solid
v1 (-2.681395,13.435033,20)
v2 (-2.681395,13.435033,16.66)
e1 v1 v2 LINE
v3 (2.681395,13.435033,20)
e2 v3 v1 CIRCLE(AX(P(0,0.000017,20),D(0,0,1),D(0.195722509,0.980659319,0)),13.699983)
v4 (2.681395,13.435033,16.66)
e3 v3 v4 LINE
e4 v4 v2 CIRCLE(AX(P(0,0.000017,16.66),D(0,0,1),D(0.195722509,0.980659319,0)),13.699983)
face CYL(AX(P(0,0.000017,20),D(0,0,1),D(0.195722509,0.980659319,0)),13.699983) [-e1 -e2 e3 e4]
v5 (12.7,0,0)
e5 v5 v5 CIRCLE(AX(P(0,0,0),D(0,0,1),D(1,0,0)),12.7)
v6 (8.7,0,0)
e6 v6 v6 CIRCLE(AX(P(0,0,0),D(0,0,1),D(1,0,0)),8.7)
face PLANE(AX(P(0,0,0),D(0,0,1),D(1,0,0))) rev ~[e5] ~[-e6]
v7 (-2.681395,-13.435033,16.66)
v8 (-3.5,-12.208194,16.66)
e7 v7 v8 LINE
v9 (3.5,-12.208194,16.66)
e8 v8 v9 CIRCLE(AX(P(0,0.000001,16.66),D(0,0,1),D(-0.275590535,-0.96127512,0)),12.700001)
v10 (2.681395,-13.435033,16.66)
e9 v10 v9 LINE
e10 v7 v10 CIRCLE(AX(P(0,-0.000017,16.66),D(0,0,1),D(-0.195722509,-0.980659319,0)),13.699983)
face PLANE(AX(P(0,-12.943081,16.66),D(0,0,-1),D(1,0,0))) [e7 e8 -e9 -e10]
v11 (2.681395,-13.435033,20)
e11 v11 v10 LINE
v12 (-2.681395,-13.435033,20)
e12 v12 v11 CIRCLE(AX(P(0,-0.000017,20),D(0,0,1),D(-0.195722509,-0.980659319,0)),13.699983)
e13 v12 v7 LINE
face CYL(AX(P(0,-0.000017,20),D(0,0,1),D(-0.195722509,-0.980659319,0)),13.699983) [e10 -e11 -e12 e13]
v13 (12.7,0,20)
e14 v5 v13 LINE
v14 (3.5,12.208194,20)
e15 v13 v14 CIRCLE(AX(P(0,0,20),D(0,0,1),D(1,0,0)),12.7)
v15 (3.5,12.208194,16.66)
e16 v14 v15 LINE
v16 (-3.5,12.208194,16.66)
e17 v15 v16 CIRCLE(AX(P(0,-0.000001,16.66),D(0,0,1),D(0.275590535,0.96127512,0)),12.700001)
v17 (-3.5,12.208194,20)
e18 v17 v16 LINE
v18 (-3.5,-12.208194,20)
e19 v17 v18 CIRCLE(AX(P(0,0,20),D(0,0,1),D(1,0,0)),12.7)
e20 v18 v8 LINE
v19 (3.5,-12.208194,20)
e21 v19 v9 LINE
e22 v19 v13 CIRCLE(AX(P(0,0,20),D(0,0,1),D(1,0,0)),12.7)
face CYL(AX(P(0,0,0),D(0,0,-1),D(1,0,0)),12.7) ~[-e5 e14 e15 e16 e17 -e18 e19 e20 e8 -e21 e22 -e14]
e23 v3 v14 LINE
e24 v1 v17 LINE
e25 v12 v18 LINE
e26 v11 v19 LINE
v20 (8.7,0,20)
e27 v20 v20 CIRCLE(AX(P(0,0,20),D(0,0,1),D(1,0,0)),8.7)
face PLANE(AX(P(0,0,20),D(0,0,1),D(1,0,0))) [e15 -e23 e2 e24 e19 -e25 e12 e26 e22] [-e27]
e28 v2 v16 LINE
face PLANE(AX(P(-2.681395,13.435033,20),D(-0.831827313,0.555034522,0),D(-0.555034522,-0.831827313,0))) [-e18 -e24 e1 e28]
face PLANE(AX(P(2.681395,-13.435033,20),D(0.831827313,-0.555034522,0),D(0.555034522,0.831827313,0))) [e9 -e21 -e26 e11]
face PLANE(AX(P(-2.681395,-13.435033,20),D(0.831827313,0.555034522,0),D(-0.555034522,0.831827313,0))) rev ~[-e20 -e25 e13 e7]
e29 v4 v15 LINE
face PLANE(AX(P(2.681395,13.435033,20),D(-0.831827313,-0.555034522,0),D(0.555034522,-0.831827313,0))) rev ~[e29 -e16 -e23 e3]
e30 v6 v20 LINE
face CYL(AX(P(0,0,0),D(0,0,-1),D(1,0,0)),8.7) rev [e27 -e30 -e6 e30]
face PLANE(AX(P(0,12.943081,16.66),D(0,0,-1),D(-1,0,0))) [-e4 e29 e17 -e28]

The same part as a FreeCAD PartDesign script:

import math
import FreeCAD as App
import Part
import Sketcher

doc = App.newDocument("Part")
params = doc.addObject("Spreadsheet::Sheet", "Params")
for row, (alias, value) in enumerate([
    ("sketch1_diameter", "25.4 mm"),
    ("sketch1_diameter2", "17.4 mm"),
    ("pad1_length", "20 mm"),
    ("sketch2_radius", "12.700001 mm"),
    ("pad2_length", "3.34 mm"),
], start=1):
    params.set(f"A{row}", alias)
    params.set(f"B{row}", "=" + value)
    params.setAlias(f"B{row}", alias)

body = doc.addObject("PartDesign::Body", "Body")

# Sketch on XY plane
sketch1 = body.newObject("Sketcher::SketchObject", "Sketch")
sketch1.AttachmentSupport = (doc.getObject("XY_Plane"), [""])
sketch1.MapMode = "FlatFace"
sketch1.addGeometry([
    Part.Circle(App.Vector(0, 0, 0), App.Vector(0, 0, 1), 13),
    Part.Circle(App.Vector(0, 0, 0), App.Vector(0, 0, 1), 9),
], False)
sketch1.addConstraint([
    Sketcher.Constraint("Coincident", 0, 3, -1, 1),
    Sketcher.Constraint("Coincident", 1, 3, -1, 1),
    Sketcher.Constraint("Diameter", 0, 25.4),
    Sketcher.Constraint("Diameter", 1, 17.4),
])
sketch1.setExpression("Constraints[2]", "Params.sketch1_diameter")
sketch1.setExpression("Constraints[3]", "Params.sketch1_diameter2")
pad1 = body.newObject("PartDesign::Pad", "Pad")
pad1.Profile = sketch1
pad1.setExpression("Length", "Params.pad1_length")

# Sketch on XY plane
sketch2 = body.newObject("Sketcher::SketchObject", "Sketch001")
sketch2.AttachmentSupport = (doc.getObject("XY_Plane"), [""])
sketch2.MapMode = "FlatFace"
sketch2.AttachmentOffset = App.Placement(App.Vector(0, 0, 20), App.Rotation())
sketch2.addGeometry([
    Part.ArcOfCircle(Part.Circle(App.Vector(0, 0, 0), App.Vector(0, 0, 1), 12.7), math.radians(74), math.radians(106)),
    Part.LineSegment(App.Vector(3.5, 12.2, 0), App.Vector(2.7, 13.4, 0)),
    Part.ArcOfCircle(Part.Circle(App.Vector(0, 0, 0), App.Vector(0, 0, 1), 13.7), math.radians(79), math.radians(101)),
    Part.LineSegment(App.Vector(-2.7, 13.4, 0), App.Vector(-3.5, 12.2, 0)),
], False)
sketch2.addConstraint([
    Sketcher.Constraint("Coincident", 0, 1, 1, 1),
    Sketcher.Constraint("Coincident", 1, 2, 2, 1),
    Sketcher.Constraint("Coincident", 2, 2, 3, 1),
    Sketcher.Constraint("Coincident", 3, 2, 0, 2),
    Sketcher.Constraint("Coincident", 0, 3, -1, 1),
    Sketcher.Constraint("Symmetric", 1, 2, 2, 2, -2),
    Sketcher.Constraint("Horizontal", 0, 1, 3, 2),
    Sketcher.Constraint("Radius", 0, 12.700001),
    Sketcher.Constraint("DistanceX", 3, 2, 0, 1, 7.0),
    Sketcher.Constraint("Radius", 2, 13.699983),
    Sketcher.Constraint("DistanceY", 0, 1, 1, 2, 1.226839),
    Sketcher.Constraint("DistanceX", 2, 2, 1, 2, 5.36279),
])
sketch2.setExpression("Constraints[7]", "Params.sketch2_radius")
pad2 = body.newObject("PartDesign::Pad", "Pad001")
pad2.Profile = sketch2
pad2.setExpression("Length", "Params.pad2_length")
pad2.Reversed = True
doc.recompute()

polarpattern = body.newObject("PartDesign::PolarPattern", "PolarPattern")
polarpattern.Originals = [pad2]
polarpattern.Axis = (doc.getObject("Z_Axis"), [""])
polarpattern.Angle = 360
polarpattern.Occurrences = 2
body.Tip = polarpattern

doc.recompute()
